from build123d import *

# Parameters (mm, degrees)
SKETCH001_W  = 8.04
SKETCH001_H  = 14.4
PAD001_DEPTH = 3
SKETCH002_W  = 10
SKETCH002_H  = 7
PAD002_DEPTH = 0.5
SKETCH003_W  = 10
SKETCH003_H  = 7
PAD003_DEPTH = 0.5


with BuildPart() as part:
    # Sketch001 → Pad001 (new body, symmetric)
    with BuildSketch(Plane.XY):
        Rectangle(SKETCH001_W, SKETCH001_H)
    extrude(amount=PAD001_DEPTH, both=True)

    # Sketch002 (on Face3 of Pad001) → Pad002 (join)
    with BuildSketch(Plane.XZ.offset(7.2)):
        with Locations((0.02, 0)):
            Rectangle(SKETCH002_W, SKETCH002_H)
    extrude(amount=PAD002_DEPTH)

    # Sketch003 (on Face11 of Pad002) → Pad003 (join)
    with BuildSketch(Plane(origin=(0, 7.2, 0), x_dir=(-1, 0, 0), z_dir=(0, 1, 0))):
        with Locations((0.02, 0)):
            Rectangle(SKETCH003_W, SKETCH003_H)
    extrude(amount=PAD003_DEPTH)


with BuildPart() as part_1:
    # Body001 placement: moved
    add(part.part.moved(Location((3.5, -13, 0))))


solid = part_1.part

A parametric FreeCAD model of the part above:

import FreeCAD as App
import Part
import Sketcher
from FreeCAD import Vector
Q = App.Units.Quantity


def add_polygon(sketch, points):
    """Adds a closed chain of lines whose ends are joined by coincident constraints."""
    first, n = sketch.GeometryCount, len(points)
    for a, b in zip(points, points[1:] + points[:1]):
        sketch.addGeometry(Part.LineSegment(App.Vector(*a, 0), App.Vector(*b, 0)), False)
    for i in range(n):
        sketch.addConstraint(Sketcher.Constraint("Coincident", first + i, 2, first + (i + 1) % n, 1))

doc = App.newDocument("Part")
body = doc.addObject("PartDesign::Body", "Body")

# Sketch on XY plane
sketch1 = body.newObject("Sketcher::SketchObject", "Sketch")
sketch1.AttachmentSupport = (doc.getObject("XY_Plane"), [""])
sketch1.MapMode = "FlatFace"
add_polygon(sketch1, [(-4, 7), (-4, -7), (4, -7), (4, 7)])  # lines 0-3
sketch1.addConstraint(Sketcher.Constraint("Vertical", 0))
sketch1.addConstraint(Sketcher.Constraint("Horizontal", 1))
sketch1.addConstraint(Sketcher.Constraint("Vertical", 2))
sketch1.addConstraint(Sketcher.Constraint("Horizontal", 3))
sketch1.addConstraint(Sketcher.Constraint("Symmetric", 0, 2, 2, 2, -1, 1))
sketch1.addConstraint(Sketcher.Constraint("DistanceY", 0, 2, 0, 1, Q("14.4 mm")))
sketch1.addConstraint(Sketcher.Constraint("DistanceX", 1, 1, 1, 2, Q("8.04 mm")))
pad1 = body.newObject("PartDesign::Pad", "Pad")
pad1.Profile = sketch1
pad1.Length = 6
pad1.Midplane = True

# Sketch on XZ plane
sketch2 = body.newObject("Sketcher::SketchObject", "Sketch001")
sketch2.AttachmentSupport = (doc.getObject("XZ_Plane"), [""])
sketch2.MapMode = "FlatFace"
sketch2.AttachmentOffset = App.Placement(Vector(0, 0, 7.2), App.Rotation())
add_polygon(sketch2, [(-5, 4), (-5, -4), (5, -4), (5, 4)])  # lines 0-3
sketch2.addConstraint(Sketcher.Constraint("Vertical", 0))
sketch2.addConstraint(Sketcher.Constraint("Horizontal", 1))
sketch2.addConstraint(Sketcher.Constraint("Vertical", 2))
sketch2.addConstraint(Sketcher.Constraint("Horizontal", 3))
sketch2.addConstraint(Sketcher.Constraint("DistanceX", 1, 1, 1, 2, Q("10 mm")))
sketch2.addConstraint(Sketcher.Constraint("DistanceY", 0, 2, 0, 1, Q("7 mm")))
sketch2.addConstraint(Sketcher.Constraint("DistanceY", 0, 2, -1, 1, Q("3.5 mm")))
sketch2.addConstraint(Sketcher.Constraint("DistanceX", 0, 2, -1, 1, Q("4.98 mm")))
pad2 = body.newObject("PartDesign::Pad", "Pad001")
pad2.Profile = sketch2
pad2.Length = 0.5

# Sketch on XZ plane
sketch3 = body.newObject("Sketcher::SketchObject", "Sketch002")
sketch3.AttachmentSupport = (doc.getObject("XZ_Plane"), [""])
sketch3.MapMode = "FlatFace"
sketch3.AttachmentOffset = App.Placement(Vector(0, 0, -7.2), App.Rotation())
add_polygon(sketch3, [(5, 4), (5, -4), (-5, -4), (-5, 4)])  # lines 0-3
sketch3.addConstraint(Sketcher.Constraint("Vertical", 0))
sketch3.addConstraint(Sketcher.Constraint("Horizontal", 1))
sketch3.addConstraint(Sketcher.Constraint("Vertical", 2))
sketch3.addConstraint(Sketcher.Constraint("Horizontal", 3))
sketch3.addConstraint(Sketcher.Constraint("DistanceX", 1, 2, 1, 1, Q("10 mm")))
sketch3.addConstraint(Sketcher.Constraint("DistanceY", 0, 2, 0, 1, Q("7 mm")))
sketch3.addConstraint(Sketcher.Constraint("DistanceY", 0, 2, -1, 1, Q("3.5 mm")))
sketch3.addConstraint(Sketcher.Constraint("DistanceX", -1, 1, 0, 2, Q("4.98 mm")))
pad3 = body.newObject("PartDesign::Pad", "Pad002")
pad3.Profile = sketch3
pad3.Length = 0.5
pad3.Reversed = True
body2 = doc.addObject("PartDesign::Body", "Body001")
doc.recompute()

body.Placement = App.Placement(Vector(3.5, -13, 0), App.Rotation(Vector(0, 0, 1), 0))
boolean = body2.newObject("PartDesign::Boolean", "Boolean")
boolean.Type = "Fuse"
boolean.addObjects([body])

doc.recompute()
